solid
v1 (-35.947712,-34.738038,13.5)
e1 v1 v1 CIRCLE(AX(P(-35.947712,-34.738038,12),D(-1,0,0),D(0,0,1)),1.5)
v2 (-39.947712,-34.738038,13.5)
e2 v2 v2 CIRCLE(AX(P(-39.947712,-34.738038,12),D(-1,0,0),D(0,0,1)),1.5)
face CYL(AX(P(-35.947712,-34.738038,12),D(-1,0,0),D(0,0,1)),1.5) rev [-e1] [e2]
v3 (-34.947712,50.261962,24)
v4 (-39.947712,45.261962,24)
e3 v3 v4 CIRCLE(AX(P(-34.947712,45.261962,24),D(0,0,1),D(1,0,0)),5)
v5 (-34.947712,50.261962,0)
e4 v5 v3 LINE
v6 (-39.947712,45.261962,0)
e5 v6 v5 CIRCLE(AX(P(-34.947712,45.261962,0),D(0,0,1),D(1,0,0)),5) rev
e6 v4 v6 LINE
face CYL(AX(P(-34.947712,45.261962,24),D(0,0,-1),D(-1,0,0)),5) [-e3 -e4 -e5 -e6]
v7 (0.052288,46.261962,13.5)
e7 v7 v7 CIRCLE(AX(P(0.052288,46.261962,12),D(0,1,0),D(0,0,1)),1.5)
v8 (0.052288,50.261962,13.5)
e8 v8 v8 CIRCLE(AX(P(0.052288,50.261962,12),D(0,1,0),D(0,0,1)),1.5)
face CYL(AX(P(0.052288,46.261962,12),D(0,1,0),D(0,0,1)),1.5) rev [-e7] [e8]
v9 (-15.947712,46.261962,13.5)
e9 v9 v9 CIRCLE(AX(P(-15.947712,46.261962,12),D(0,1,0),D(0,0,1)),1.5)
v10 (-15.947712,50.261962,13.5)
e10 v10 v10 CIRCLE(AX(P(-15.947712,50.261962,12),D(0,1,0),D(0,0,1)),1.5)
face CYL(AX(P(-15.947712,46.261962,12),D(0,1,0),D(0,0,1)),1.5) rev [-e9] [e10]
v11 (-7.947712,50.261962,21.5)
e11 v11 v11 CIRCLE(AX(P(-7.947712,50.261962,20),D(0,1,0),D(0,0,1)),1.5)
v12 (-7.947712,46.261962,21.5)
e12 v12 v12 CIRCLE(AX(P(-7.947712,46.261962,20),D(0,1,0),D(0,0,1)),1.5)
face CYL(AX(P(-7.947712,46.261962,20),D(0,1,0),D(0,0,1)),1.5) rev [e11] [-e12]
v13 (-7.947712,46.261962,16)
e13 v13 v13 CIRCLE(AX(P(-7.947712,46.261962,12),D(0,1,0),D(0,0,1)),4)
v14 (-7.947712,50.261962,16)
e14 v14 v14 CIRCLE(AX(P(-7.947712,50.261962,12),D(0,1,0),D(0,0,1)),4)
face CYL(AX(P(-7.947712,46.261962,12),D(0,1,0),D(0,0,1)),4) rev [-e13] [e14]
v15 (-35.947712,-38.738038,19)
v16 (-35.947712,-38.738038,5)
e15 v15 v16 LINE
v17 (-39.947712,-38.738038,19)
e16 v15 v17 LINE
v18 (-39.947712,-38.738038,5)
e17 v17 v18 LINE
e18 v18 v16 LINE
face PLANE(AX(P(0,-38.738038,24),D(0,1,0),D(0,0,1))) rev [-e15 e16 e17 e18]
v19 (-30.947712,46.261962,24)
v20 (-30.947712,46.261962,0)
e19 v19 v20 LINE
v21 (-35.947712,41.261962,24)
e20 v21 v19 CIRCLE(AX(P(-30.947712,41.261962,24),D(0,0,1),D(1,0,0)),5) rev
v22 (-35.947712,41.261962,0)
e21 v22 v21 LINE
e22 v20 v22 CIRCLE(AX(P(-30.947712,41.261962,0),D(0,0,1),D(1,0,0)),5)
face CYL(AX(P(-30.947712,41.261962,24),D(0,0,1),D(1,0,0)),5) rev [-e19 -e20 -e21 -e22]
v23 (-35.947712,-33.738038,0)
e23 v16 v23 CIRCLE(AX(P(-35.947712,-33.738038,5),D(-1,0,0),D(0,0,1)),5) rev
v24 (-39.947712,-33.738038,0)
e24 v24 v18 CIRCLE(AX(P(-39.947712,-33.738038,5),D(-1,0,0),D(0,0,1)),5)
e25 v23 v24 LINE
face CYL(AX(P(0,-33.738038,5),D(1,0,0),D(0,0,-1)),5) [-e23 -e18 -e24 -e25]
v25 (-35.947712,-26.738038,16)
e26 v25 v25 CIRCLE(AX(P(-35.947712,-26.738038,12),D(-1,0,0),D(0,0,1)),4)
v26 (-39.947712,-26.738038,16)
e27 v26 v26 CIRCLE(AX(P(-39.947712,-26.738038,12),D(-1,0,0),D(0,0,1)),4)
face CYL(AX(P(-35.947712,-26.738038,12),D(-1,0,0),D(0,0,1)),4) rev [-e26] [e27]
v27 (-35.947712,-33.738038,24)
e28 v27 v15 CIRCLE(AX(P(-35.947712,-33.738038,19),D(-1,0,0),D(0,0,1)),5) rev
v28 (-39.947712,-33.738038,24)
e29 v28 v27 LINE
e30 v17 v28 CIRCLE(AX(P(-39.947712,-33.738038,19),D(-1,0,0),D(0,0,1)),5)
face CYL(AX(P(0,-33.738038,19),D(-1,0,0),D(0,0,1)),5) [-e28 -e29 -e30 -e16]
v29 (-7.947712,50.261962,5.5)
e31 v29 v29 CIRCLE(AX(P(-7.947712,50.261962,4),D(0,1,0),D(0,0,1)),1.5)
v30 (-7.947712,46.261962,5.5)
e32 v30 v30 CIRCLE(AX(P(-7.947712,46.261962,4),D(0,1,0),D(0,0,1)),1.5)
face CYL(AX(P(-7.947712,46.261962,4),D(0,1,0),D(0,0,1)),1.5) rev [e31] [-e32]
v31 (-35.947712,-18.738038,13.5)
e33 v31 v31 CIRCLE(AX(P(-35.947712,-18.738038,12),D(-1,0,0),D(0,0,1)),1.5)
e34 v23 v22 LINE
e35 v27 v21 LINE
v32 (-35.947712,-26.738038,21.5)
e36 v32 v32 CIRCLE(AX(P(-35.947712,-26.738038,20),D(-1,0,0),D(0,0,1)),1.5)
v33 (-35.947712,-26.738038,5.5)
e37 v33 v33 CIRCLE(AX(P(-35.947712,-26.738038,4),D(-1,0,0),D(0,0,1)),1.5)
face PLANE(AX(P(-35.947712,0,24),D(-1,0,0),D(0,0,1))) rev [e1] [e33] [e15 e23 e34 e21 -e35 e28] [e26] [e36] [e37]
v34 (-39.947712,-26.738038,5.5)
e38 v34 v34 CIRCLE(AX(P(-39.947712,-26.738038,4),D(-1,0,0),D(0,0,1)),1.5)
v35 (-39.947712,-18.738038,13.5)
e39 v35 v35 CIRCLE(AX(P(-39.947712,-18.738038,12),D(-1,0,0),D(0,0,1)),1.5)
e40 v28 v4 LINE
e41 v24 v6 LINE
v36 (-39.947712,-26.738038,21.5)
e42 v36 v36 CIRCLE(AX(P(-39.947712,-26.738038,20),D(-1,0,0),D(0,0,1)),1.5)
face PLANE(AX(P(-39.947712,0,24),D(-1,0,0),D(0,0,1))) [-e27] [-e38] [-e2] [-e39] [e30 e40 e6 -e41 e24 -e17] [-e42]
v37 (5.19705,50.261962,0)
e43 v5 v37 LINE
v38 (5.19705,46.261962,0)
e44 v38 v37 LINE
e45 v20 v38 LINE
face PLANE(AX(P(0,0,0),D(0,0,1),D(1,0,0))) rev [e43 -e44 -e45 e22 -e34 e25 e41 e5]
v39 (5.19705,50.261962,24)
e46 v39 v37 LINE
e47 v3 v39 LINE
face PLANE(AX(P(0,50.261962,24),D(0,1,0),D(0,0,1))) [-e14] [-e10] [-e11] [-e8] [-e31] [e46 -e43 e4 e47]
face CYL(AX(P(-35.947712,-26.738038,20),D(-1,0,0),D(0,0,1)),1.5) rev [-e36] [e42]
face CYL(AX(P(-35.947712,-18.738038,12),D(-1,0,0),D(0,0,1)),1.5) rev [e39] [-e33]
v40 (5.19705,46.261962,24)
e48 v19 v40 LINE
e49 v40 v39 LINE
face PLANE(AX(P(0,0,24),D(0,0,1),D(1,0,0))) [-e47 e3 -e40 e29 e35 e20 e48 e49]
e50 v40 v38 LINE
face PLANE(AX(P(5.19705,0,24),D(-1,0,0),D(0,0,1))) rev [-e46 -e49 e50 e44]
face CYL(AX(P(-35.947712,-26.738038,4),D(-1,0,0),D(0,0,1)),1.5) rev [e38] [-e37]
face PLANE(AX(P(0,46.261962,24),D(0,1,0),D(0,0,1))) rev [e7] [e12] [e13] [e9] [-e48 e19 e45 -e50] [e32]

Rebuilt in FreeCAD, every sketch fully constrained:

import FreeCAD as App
import Part
import Sketcher


def edges_at(feature, points):
    """Names of the edges that pass closest to the given points."""
    edges = feature.Shape.Edges
    near = lambda p: min(range(len(edges)), key=lambda i: edges[i].distToShape(Part.Vertex(*p))[0])
    return sorted({f"Edge{near(p) + 1}" for p in points})

doc = App.newDocument("Part")
body = doc.addObject("PartDesign::Body", "Body")

# Sketch on XY plane
sketch1 = doc.addObject("Sketcher::SketchObject", "Sketch")
body.addObject(sketch1)
sketch1.AttachmentSupport = (doc.XY_Plane, [""])
sketch1.MapMode = "FlatFace"
sketch1.addGeometry([
    Part.LineSegment(App.Vector(-35.9, -38.7, 0), App.Vector(-35.9, 46.3, 0)),  # 0
    Part.LineSegment(App.Vector(-35.9, 46.3, 0), App.Vector(5.2, 46.3, 0)),  # 1
    Part.LineSegment(App.Vector(5.2, 46.3, 0), App.Vector(5.2, 50.3, 0)),  # 2
    Part.LineSegment(App.Vector(5.2, 50.3, 0), App.Vector(-39.9, 50.3, 0)),  # 3
    Part.LineSegment(App.Vector(-39.9, 50.3, 0), App.Vector(-39.9, -38.7, 0)),  # 4
    Part.LineSegment(App.Vector(-39.9, -38.7, 0), App.Vector(-35.9, -38.7, 0)),  # 5
], False)
sketch1.addConstraint([
    Sketcher.Constraint("Coincident", 0, 2, 1, 1),
    Sketcher.Constraint("Coincident", 1, 2, 2, 1),
    Sketcher.Constraint("Coincident", 2, 2, 3, 1),
    Sketcher.Constraint("Coincident", 3, 2, 4, 1),
    Sketcher.Constraint("Coincident", 4, 2, 5, 1),
    Sketcher.Constraint("Coincident", 5, 2, 0, 1),
    Sketcher.Constraint("Vertical", 0),
    Sketcher.Constraint("Horizontal", 1),
    Sketcher.Constraint("Vertical", 2),
    Sketcher.Constraint("Horizontal", 3),
    Sketcher.Constraint("Vertical", 4),
    Sketcher.Constraint("Horizontal", 5),
    Sketcher.Constraint("Equal", 5, 2),
    Sketcher.Constraint("DistanceX", 5, 1, 5, 2, 4.0),
    Sketcher.Constraint("DistanceY", 0, 1, 0, 2, 85.0),
    Sketcher.Constraint("DistanceX", 1, 1, 1, 2, 41.144762),
    Sketcher.Constraint("DistanceY", -1, 1, 0, 2, 46.261962),
    Sketcher.Constraint("DistanceX", -1, 1, 1, 2, 5.19705),
])
pad1 = doc.addObject("PartDesign::Pad", "Pad")
body.addObject(pad1)
pad1.Profile = sketch1
pad1.Length = 24

# Sketch on YZ plane
sketch2 = doc.addObject("Sketcher::SketchObject", "Sketch001")
body.addObject(sketch2)
sketch2.AttachmentSupport = (doc.YZ_Plane, [""])
sketch2.MapMode = "FlatFace"
sketch2.AttachmentOffset = App.Placement(App.Vector(0, 0, -39.947712), App.Rotation())
sketch2.addGeometry([
    Part.Circle(App.Vector(-26.7, 12, 0), App.Vector(0, 0, 1), 4),  # 0
    Part.Circle(App.Vector(-26.7, 20, 0), App.Vector(0, 0, 1), 1.5),  # 1
    Part.Circle(App.Vector(-34.7, 12, 0), App.Vector(0, 0, 1), 1.5),  # 2
    Part.Circle(App.Vector(-26.7, 4, 0), App.Vector(0, 0, 1), 1.5),  # 3
    Part.Circle(App.Vector(-18.7, 12, 0), App.Vector(0, 0, 1), 1.5),  # 4
], False)
sketch2.addConstraint([
    Sketcher.Constraint("Equal", 1, 2),
    Sketcher.Constraint("Equal", 2, 3),
    Sketcher.Constraint("Equal", 3, 4),
    Sketcher.Constraint("Horizontal", 0, 3, 2, 3),
    Sketcher.Constraint("Horizontal", 2, 3, 4, 3),
    Sketcher.Constraint("Vertical", 0, 3, 1, 3),
    Sketcher.Constraint("Vertical", 1, 3, 3, 3),
    Sketcher.Constraint("Diameter", 0, 8.0),
    Sketcher.Constraint("Diameter", 1, 3.0),
    Sketcher.Constraint("DistanceY", -1, 1, 0, 3, 12.0),
    Sketcher.Constraint("DistanceY", -1, 1, 1, 3, 20.0),
    Sketcher.Constraint("DistanceY", -1, 1, 3, 3, 4.0),
    Sketcher.Constraint("DistanceX", 2, 3, 0, 3, 8.0),
    Sketcher.Constraint("DistanceX", 0, 3, 4, 3, 8.0),
    Sketcher.Constraint("DistanceX", 0, 3, -1, 1, 26.738038),
])
pocket1 = doc.addObject("PartDesign::Pocket", "Pocket")
body.addObject(pocket1)
pocket1.Profile = sketch2
pocket1.Length = 4
pocket1.Reversed = True

# Sketch on XZ plane
sketch3 = doc.addObject("Sketcher::SketchObject", "Sketch002")
body.addObject(sketch3)
sketch3.AttachmentSupport = (doc.XZ_Plane, [""])
sketch3.MapMode = "FlatFace"
sketch3.AttachmentOffset = App.Placement(App.Vector(0, 0, -50.261962), App.Rotation())
sketch3.addGeometry([
    Part.Circle(App.Vector(-7.9, 12, 0), App.Vector(0, 0, 1), 4),  # 0
    Part.Circle(App.Vector(0.1, 12, 0), App.Vector(0, 0, 1), 1.5),  # 1
    Part.Circle(App.Vector(-7.9, 20, 0), App.Vector(0, 0, 1), 1.5),  # 2
    Part.Circle(App.Vector(-15.9, 12, 0), App.Vector(0, 0, 1), 1.5),  # 3
    Part.Circle(App.Vector(-7.9, 4, 0), App.Vector(0, 0, 1), 1.5),  # 4
], False)
sketch3.addConstraint([
    Sketcher.Constraint("Equal", 1, 2),
    Sketcher.Constraint("Equal", 2, 3),
    Sketcher.Constraint("Equal", 3, 4),
    Sketcher.Constraint("Horizontal", 0, 3, 1, 3),
    Sketcher.Constraint("Horizontal", 1, 3, 3, 3),
    Sketcher.Constraint("Vertical", 0, 3, 2, 3),
    Sketcher.Constraint("Vertical", 2, 3, 4, 3),
    Sketcher.Constraint("Diameter", 0, 8.0),
    Sketcher.Constraint("Diameter", 1, 3.0),
    Sketcher.Constraint("DistanceY", -1, 1, 0, 3, 12.0),
    Sketcher.Constraint("DistanceY", -1, 1, 2, 3, 20.0),
    Sketcher.Constraint("DistanceY", -1, 1, 4, 3, 4.0),
    Sketcher.Constraint("DistanceX", 0, 3, 1, 3, 8.0),
    Sketcher.Constraint("DistanceX", 3, 3, 0, 3, 8.0),
    Sketcher.Constraint("DistanceX", 0, 3, -1, 1, 7.947712),
])
pocket2 = doc.addObject("PartDesign::Pocket", "Pocket001")
body.addObject(pocket2)
pocket2.Profile = sketch3
pocket2.Length = 4
pocket2.Reversed = True
doc.recompute()

fillet = doc.addObject("PartDesign::Fillet", "Fillet")
body.addObject(fillet)
fillet.Base = (pocket2, edges_at(pocket2, [
    (-35.948, 46.262, 12),
    (-39.948, 50.262, 12),
    (-37.948, -38.738, 24),
    (-37.948, -38.738, 0),
]))
fillet.Radius = 5

doc.recompute()
